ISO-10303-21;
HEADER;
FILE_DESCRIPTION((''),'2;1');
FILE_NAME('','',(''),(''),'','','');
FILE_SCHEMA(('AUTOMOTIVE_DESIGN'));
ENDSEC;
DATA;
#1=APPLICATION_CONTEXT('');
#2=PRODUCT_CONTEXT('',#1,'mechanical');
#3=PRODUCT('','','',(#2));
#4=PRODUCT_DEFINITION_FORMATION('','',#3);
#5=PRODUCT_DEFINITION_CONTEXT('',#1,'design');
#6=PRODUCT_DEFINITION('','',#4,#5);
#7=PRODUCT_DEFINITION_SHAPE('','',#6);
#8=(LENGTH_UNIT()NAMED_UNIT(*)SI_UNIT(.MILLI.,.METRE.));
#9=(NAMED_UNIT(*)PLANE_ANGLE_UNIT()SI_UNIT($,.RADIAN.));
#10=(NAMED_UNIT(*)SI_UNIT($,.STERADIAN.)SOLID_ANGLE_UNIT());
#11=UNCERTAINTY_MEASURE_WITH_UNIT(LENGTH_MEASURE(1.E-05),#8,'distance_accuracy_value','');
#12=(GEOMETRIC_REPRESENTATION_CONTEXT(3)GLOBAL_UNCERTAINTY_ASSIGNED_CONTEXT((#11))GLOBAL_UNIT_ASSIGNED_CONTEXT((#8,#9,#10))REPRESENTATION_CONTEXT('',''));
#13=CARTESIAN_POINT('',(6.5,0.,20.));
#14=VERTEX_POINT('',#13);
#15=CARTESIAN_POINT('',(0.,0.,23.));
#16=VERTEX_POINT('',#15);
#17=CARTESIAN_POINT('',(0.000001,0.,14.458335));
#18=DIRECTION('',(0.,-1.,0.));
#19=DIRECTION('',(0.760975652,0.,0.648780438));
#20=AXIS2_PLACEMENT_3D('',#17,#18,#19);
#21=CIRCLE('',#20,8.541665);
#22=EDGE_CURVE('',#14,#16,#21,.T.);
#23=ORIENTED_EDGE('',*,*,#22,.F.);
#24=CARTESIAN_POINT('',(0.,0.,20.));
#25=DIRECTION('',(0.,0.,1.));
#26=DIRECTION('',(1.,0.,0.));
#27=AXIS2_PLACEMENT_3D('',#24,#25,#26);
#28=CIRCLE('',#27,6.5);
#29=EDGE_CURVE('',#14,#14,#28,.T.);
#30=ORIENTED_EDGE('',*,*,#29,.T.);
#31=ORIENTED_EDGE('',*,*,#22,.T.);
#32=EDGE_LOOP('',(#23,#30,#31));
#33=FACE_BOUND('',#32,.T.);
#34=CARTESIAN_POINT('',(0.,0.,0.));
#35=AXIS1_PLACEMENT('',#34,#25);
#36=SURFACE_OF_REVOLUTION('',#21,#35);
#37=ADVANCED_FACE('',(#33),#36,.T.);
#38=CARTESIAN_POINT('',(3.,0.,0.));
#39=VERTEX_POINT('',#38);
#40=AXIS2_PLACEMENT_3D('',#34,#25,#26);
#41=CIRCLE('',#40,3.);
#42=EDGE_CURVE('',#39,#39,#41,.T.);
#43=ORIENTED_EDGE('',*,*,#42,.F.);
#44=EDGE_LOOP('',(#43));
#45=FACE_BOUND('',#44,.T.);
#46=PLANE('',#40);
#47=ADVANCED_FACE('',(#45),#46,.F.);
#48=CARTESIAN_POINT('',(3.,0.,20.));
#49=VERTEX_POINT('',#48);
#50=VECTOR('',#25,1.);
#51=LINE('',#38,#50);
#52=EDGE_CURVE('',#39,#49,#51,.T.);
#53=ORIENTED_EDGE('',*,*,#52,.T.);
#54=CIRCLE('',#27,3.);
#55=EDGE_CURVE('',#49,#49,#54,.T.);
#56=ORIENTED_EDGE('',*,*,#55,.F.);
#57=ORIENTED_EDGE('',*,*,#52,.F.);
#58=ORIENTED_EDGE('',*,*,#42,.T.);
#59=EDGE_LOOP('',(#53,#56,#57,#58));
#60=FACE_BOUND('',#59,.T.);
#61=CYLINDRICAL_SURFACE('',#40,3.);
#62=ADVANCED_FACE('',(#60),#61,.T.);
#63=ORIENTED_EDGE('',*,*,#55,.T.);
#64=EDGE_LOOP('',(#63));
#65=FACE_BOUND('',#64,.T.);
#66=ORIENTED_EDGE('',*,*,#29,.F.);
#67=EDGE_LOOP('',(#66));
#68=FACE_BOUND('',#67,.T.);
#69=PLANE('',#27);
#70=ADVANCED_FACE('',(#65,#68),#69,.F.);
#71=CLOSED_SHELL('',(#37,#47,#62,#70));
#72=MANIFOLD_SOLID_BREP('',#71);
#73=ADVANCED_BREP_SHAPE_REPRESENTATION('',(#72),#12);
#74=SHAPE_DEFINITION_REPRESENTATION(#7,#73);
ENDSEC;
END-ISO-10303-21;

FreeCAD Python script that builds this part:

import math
import FreeCAD as App
import Part
import Sketcher
from FreeCAD import Vector

doc = App.newDocument("Part")
body = doc.addObject("PartDesign::Body", "Body")

sketch1 = doc.addObject("Sketcher::SketchObject", "Sketch")
body.addObject(sketch1)
sketch1.AttachmentSupport = (doc.XZ_Plane, [""])
sketch1.MapMode = "FlatFace"
sketch1.addGeometry([
    Part.LineSegment(Vector(0, 23, 0), Vector(0, 0, 0)),
    Part.LineSegment(Vector(0, 0, 0), Vector(3, 0, 0)),
    Part.LineSegment(Vector(3, 0, 0), Vector(3, 20, 0)),
    Part.LineSegment(Vector(3, 20, 0), Vector(6.5, 20, 0)),
    Part.ArcOfCircle(Part.Circle(Vector(0, 14.5, 0), Vector(0, 0, 1), 8.5), math.radians(40), math.radians(90)),
], False)
sketch1.addConstraint([
    Sketcher.Constraint("Coincident", 0, 2, 1, 1),
    Sketcher.Constraint("Coincident", 1, 2, 2, 1),
    Sketcher.Constraint("Coincident", 2, 2, 3, 1),
    Sketcher.Constraint("Coincident", 3, 2, 4, 1),
    Sketcher.Constraint("Coincident", 4, 2, 0, 1),
    Sketcher.Constraint("Vertical", 0),
    Sketcher.Constraint("Horizontal", 1),
    Sketcher.Constraint("Vertical", 2),
    Sketcher.Constraint("Horizontal", 3),
    Sketcher.Constraint("Coincident", 0, 2, -1, 1),
    Sketcher.Constraint("PointOnObject", 4, 3, -2),
    Sketcher.Constraint("DistanceX", 1, 1, 1, 2, 3.0),
    Sketcher.Constraint("DistanceY", 0, 2, 0, 1, 23.0),
    Sketcher.Constraint("DistanceY", 2, 1, 2, 2, 20.0),
    Sketcher.Constraint("DistanceX", 3, 1, 3, 2, 3.5),
])
revolution = doc.addObject("PartDesign::Revolution", "Revolution")
body.addObject(revolution)
revolution.Profile = sketch1
revolution.ReferenceAxis = (sketch1, ["V_Axis"])
revolution.Angle = 360

doc.recompute()
